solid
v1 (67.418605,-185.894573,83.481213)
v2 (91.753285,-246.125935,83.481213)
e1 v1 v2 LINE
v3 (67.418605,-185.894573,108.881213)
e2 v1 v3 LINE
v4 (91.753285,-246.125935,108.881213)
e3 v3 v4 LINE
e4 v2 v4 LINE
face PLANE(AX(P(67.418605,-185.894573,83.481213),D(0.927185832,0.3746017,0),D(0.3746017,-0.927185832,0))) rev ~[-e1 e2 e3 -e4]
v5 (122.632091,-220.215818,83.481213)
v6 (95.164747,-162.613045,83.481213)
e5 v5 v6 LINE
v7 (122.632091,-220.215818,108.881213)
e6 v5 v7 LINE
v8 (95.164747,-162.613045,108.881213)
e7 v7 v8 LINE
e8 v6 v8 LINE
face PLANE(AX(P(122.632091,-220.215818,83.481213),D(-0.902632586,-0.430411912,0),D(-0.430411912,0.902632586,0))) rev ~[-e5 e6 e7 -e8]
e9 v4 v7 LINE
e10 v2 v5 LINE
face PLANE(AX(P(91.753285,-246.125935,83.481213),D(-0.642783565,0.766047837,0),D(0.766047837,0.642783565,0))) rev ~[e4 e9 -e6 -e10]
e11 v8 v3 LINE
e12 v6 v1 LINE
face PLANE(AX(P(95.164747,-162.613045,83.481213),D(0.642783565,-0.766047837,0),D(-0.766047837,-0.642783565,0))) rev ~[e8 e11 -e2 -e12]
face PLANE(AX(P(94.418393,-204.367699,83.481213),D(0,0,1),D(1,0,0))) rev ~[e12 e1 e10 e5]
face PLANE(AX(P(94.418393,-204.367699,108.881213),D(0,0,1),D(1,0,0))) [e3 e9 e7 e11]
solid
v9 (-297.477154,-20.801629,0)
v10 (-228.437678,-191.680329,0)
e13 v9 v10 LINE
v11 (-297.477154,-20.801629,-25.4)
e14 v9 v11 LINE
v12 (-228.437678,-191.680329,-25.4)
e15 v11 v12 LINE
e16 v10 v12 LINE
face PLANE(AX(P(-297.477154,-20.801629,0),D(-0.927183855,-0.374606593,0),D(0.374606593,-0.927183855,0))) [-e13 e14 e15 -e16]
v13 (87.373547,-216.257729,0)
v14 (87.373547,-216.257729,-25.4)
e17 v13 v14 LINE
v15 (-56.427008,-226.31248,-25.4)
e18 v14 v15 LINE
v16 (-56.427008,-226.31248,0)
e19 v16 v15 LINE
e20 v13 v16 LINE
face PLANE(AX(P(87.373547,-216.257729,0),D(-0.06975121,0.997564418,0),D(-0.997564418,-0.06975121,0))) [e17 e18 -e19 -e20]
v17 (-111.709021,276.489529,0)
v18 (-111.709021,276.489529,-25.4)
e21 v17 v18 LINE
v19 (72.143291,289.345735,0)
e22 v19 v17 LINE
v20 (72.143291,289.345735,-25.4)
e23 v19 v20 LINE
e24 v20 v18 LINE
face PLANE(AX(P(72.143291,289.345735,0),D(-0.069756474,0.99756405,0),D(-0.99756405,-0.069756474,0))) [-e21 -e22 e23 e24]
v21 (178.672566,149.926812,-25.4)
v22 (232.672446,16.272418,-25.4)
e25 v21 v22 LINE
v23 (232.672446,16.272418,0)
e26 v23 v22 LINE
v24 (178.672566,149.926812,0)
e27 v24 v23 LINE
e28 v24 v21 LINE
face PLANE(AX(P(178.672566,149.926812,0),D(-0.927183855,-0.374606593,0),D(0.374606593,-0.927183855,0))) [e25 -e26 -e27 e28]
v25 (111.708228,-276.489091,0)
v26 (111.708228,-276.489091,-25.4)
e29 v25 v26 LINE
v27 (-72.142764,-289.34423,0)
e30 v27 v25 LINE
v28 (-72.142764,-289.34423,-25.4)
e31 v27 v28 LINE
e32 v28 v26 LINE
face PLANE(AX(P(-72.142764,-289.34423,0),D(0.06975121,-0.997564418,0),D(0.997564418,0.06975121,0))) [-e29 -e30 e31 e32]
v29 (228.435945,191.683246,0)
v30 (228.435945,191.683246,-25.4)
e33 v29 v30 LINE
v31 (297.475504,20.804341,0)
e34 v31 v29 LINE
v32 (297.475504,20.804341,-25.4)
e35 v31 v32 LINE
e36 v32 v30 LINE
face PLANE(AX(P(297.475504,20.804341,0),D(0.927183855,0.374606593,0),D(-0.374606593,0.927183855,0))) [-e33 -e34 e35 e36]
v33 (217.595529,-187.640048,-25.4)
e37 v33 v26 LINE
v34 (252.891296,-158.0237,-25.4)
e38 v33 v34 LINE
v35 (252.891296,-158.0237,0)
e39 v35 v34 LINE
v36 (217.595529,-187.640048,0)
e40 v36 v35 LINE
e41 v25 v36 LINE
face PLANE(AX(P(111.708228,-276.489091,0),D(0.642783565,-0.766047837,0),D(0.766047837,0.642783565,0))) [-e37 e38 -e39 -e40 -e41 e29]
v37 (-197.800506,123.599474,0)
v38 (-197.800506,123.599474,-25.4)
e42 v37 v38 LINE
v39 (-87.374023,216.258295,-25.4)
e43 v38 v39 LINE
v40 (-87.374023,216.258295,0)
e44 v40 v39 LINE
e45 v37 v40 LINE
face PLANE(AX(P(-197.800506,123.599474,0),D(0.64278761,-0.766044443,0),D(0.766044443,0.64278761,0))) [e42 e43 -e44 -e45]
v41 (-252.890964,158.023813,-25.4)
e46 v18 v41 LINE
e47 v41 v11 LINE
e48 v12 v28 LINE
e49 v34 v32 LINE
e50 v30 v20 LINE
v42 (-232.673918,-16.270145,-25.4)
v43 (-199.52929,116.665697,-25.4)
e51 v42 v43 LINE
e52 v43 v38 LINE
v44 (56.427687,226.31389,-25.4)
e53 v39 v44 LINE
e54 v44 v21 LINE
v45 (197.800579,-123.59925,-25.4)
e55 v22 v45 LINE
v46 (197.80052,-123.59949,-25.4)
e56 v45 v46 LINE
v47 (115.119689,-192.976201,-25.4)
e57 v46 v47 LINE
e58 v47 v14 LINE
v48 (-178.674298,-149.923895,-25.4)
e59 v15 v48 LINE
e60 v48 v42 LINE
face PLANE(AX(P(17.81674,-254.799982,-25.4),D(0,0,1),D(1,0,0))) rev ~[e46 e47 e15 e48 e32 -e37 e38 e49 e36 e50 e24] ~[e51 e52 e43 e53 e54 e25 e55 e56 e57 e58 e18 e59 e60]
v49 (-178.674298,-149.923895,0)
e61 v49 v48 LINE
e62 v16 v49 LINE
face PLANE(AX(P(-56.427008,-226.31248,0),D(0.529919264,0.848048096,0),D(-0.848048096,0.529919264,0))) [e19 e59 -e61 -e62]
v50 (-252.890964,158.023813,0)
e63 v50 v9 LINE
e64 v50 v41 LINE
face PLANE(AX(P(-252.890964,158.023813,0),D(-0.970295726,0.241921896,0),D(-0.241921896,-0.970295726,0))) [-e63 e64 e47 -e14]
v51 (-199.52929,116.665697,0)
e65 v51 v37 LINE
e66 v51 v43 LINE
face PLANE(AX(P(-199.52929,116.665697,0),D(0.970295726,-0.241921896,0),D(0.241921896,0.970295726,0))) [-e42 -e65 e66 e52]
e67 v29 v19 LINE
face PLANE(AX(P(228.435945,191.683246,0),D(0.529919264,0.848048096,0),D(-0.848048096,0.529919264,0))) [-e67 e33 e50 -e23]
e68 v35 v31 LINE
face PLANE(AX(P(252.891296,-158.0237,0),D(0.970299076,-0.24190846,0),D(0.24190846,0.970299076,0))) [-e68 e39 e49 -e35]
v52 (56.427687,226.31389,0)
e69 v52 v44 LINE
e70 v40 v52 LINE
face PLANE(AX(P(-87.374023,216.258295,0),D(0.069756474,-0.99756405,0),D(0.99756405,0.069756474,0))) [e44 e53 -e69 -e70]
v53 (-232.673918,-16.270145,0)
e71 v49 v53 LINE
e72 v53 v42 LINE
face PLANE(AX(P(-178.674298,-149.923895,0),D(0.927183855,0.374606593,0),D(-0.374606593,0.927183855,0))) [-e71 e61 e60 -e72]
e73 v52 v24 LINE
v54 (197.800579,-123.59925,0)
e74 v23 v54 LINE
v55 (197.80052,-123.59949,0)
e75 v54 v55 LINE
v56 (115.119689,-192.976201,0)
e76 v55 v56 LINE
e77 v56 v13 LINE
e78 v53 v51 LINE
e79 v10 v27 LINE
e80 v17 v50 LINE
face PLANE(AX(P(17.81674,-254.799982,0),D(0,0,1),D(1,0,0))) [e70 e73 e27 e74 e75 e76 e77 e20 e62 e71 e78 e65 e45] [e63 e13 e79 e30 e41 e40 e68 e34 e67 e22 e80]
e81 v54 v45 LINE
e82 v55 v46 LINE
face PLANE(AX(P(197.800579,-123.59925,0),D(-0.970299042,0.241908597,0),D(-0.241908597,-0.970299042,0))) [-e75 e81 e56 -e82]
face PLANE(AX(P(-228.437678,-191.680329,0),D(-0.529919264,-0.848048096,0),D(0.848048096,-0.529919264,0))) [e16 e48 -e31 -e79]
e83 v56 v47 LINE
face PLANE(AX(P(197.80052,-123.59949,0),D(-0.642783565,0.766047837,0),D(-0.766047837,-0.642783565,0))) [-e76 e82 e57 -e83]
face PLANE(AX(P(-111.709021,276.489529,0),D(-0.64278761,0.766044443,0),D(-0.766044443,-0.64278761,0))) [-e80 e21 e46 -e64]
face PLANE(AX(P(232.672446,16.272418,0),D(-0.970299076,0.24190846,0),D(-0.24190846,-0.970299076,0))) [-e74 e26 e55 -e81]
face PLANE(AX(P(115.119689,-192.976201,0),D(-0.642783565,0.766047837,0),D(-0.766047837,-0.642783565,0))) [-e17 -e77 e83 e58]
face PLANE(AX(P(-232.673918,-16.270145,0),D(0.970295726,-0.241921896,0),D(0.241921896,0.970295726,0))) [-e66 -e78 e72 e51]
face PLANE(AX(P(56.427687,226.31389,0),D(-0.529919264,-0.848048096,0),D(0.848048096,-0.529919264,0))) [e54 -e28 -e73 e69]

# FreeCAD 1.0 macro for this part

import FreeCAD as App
import Part
import Sketcher
Q = App.Units.Quantity


def add_polygon(sketch, points):
    """Adds a closed chain of lines whose ends are joined by coincident constraints."""
    first, n = sketch.GeometryCount, len(points)
    for a, b in zip(points, points[1:] + points[:1]):
        sketch.addGeometry(Part.LineSegment(App.Vector(*a, 0), App.Vector(*b, 0)), False)
    for i in range(n):
        sketch.addConstraint(Sketcher.Constraint("Coincident", first + i, 2, first + (i + 1) % n, 1))

doc = App.newDocument("Part")
body = doc.addObject("PartDesign::Body", "Body")

sketch1 = body.newObject("Sketcher::SketchObject", "Sketch")
sketch1.AttachmentSupport = (doc.getObject("XY_Plane"), [""])
sketch1.MapMode = "FlatFace"
add_polygon(sketch1, [(-111.709021, 276.489529), (-252.890964, 158.023813), (-297.477154, -20.801629), (-228.437678, -191.680329), (-72.142764, -289.34423), (111.708228, -276.489091), (252.891296, -158.0237), (297.475504, 20.804341), (228.435945, 191.683246), (72.143291, 289.345735)])
add_polygon(sketch1, [(-56.427008, -226.31248), (-178.674298, -149.923895), (-232.673919, -16.270145), (-199.52929, 116.665697), (-197.800506, 123.599474), (-87.374023, 216.258295), (56.427687, 226.31389), (178.672566, 149.926812), (232.672446, 16.272418), (197.800579, -123.59925), (197.80052, -123.59949), (115.119689, -192.976201), (87.373547, -216.257729)])
sketch1.addConstraint([
    Sketcher.Constraint("Parallel", 2, 7),
    Sketcher.Constraint("Parallel", 3, 8),
    Sketcher.Constraint("Parallel", 8, 10),
    Sketcher.Constraint("Parallel", 7, 11),
    Sketcher.Constraint("Parallel", 1, 12),
    Sketcher.Constraint("Parallel", 12, 13),
    Sketcher.Constraint("Parallel", 0, 14),
    Sketcher.Constraint("Parallel", 9, 15),
    Sketcher.Constraint("Parallel", 10, 16),
    Sketcher.Constraint("Parallel", 11, 17),
    Sketcher.Constraint("Parallel", 6, 18),
    Sketcher.Constraint("Parallel", 18, 19),
    Sketcher.Constraint("Parallel", 5, 20),
    Sketcher.Constraint("Parallel", 20, 21),
    Sketcher.Constraint("Parallel", 4, 22),
    Sketcher.Constraint("Equal", 0, 1),
    Sketcher.Constraint("Angle", 0, Q("-140 deg")),
    Sketcher.Constraint("Angle", 1, Q("-104 deg")),
    Sketcher.Constraint("Angle", 2, Q("-68 deg")),
    Sketcher.Constraint("Angle", 3, Q("-32 deg")),
    Sketcher.Constraint("Angle", 9, Q("-176 deg")),
    Sketcher.Constraint("DistanceY", 5, 2, -1, 1, Q("158.0237 mm")),
    Sketcher.Constraint("DistanceX", 10, 2, -1, 1, Q("178.674298 mm")),
    Sketcher.Constraint("DistanceY", 20, 2, -1, 1, Q("192.976201 mm")),
    Sketcher.Constraint("DistanceY", 2, 2, 1, 2, Q("170.8787 mm")),
    Sketcher.Constraint("DistanceY", 3, 2, 2, 2, Q("97.663901 mm")),
    Sketcher.Constraint("DistanceX", 0, 2, 3, 2, Q("180.748199 mm")),
    Sketcher.Constraint("DistanceX", 1, 2, 7, 2, Q("525.913099 mm")),
    Sketcher.Constraint("DistanceX", 9, 2, 14, 2, Q("24.334998 mm")),
    Sketcher.Constraint("DistanceX", 7, 2, 17, 2, Q("4.236501 mm")),
    Sketcher.Constraint("DistanceY", 4, 2, 19, 2, Q("152.8896 mm")),
    Sketcher.Constraint("DistanceY", 3, 2, 21, 2, Q("73.086501 mm")),
    Sketcher.Constraint("Distance", 4, Q("184.299869 mm")),
    Sketcher.Constraint("Distance", 5, Q("184.300591 mm")),
    Sketcher.Constraint("Distance", 6, Q("184.30198 mm")),
    Sketcher.Constraint("Distance", 9, Q("184.301261 mm")),
    Sketcher.Constraint("Distance", 12, Q("137.005491 mm")),
    Sketcher.Constraint("Distance", 15, Q("144.152859 mm")),
    Sketcher.Constraint("Distance", 16, Q("144.148521 mm")),
    Sketcher.Constraint("Distance", 18, Q("144.153151 mm")),
    Sketcher.Constraint("Distance", 20, Q("107.93168 mm")),
    Sketcher.Constraint("Distance", 22, Q("144.151648 mm")),
    Sketcher.Constraint("DistanceY", 1, 2, -1, 1, Q("20.801629 mm")),
    Sketcher.Constraint("DistanceX", -1, 1, 8, 2, Q("72.143291 mm")),
    Sketcher.Constraint("DistanceX", 11, 2, -1, 1, Q("232.673919 mm")),
    Sketcher.Constraint("DistanceY", -1, 1, 15, 2, Q("226.31389 mm")),
])
pad1 = body.newObject("PartDesign::Pad", "Pad")
pad1.Profile = sketch1
pad1.Length = Q("1 in")
pad1.Reversed = True
body2 = doc.addObject("PartDesign::Body", "Body001")

sketch2 = body2.newObject("Sketcher::SketchObject", "Sketch001")
sketch2.AttachmentSupport = (doc.getObject("XY_Plane001"), [""])
sketch2.MapMode = "FlatFace"
sketch2.AttachmentOffset = App.Placement(App.Vector(0, 0, 83.481213), App.Rotation())
add_polygon(sketch2, [(95.164747, -162.613045), (67.418605, -185.894573), (91.753285, -246.125935), (122.632091, -220.215818)])
sketch2.addConstraint([
    Sketcher.Constraint("Parallel", 0, 2),
    Sketcher.Constraint("Distance", 1, Q("64.961478 mm")),
    Sketcher.Constraint("Distance", 2, Q("40.30924 mm")),
    Sketcher.Constraint("DistanceX", -1, 1, 2, 2, Q("122.632091 mm")),
    Sketcher.Constraint("DistanceY", 2, 2, -1, 1, Q("220.215818 mm")),
    Sketcher.Constraint("DistanceX", 0, 2, 1, 2, Q("24.33468 mm")),
    Sketcher.Constraint("DistanceX", 0, 2, 3, 2, Q("27.746142 mm")),
    Sketcher.Constraint("DistanceY", 1, 2, 3, 2, Q("83.51289 mm")),
])
pad2 = body2.newObject("PartDesign::Pad", "Pad001")
pad2.Profile = sketch2
pad2.Length = Q("1 in")

doc.recompute()
